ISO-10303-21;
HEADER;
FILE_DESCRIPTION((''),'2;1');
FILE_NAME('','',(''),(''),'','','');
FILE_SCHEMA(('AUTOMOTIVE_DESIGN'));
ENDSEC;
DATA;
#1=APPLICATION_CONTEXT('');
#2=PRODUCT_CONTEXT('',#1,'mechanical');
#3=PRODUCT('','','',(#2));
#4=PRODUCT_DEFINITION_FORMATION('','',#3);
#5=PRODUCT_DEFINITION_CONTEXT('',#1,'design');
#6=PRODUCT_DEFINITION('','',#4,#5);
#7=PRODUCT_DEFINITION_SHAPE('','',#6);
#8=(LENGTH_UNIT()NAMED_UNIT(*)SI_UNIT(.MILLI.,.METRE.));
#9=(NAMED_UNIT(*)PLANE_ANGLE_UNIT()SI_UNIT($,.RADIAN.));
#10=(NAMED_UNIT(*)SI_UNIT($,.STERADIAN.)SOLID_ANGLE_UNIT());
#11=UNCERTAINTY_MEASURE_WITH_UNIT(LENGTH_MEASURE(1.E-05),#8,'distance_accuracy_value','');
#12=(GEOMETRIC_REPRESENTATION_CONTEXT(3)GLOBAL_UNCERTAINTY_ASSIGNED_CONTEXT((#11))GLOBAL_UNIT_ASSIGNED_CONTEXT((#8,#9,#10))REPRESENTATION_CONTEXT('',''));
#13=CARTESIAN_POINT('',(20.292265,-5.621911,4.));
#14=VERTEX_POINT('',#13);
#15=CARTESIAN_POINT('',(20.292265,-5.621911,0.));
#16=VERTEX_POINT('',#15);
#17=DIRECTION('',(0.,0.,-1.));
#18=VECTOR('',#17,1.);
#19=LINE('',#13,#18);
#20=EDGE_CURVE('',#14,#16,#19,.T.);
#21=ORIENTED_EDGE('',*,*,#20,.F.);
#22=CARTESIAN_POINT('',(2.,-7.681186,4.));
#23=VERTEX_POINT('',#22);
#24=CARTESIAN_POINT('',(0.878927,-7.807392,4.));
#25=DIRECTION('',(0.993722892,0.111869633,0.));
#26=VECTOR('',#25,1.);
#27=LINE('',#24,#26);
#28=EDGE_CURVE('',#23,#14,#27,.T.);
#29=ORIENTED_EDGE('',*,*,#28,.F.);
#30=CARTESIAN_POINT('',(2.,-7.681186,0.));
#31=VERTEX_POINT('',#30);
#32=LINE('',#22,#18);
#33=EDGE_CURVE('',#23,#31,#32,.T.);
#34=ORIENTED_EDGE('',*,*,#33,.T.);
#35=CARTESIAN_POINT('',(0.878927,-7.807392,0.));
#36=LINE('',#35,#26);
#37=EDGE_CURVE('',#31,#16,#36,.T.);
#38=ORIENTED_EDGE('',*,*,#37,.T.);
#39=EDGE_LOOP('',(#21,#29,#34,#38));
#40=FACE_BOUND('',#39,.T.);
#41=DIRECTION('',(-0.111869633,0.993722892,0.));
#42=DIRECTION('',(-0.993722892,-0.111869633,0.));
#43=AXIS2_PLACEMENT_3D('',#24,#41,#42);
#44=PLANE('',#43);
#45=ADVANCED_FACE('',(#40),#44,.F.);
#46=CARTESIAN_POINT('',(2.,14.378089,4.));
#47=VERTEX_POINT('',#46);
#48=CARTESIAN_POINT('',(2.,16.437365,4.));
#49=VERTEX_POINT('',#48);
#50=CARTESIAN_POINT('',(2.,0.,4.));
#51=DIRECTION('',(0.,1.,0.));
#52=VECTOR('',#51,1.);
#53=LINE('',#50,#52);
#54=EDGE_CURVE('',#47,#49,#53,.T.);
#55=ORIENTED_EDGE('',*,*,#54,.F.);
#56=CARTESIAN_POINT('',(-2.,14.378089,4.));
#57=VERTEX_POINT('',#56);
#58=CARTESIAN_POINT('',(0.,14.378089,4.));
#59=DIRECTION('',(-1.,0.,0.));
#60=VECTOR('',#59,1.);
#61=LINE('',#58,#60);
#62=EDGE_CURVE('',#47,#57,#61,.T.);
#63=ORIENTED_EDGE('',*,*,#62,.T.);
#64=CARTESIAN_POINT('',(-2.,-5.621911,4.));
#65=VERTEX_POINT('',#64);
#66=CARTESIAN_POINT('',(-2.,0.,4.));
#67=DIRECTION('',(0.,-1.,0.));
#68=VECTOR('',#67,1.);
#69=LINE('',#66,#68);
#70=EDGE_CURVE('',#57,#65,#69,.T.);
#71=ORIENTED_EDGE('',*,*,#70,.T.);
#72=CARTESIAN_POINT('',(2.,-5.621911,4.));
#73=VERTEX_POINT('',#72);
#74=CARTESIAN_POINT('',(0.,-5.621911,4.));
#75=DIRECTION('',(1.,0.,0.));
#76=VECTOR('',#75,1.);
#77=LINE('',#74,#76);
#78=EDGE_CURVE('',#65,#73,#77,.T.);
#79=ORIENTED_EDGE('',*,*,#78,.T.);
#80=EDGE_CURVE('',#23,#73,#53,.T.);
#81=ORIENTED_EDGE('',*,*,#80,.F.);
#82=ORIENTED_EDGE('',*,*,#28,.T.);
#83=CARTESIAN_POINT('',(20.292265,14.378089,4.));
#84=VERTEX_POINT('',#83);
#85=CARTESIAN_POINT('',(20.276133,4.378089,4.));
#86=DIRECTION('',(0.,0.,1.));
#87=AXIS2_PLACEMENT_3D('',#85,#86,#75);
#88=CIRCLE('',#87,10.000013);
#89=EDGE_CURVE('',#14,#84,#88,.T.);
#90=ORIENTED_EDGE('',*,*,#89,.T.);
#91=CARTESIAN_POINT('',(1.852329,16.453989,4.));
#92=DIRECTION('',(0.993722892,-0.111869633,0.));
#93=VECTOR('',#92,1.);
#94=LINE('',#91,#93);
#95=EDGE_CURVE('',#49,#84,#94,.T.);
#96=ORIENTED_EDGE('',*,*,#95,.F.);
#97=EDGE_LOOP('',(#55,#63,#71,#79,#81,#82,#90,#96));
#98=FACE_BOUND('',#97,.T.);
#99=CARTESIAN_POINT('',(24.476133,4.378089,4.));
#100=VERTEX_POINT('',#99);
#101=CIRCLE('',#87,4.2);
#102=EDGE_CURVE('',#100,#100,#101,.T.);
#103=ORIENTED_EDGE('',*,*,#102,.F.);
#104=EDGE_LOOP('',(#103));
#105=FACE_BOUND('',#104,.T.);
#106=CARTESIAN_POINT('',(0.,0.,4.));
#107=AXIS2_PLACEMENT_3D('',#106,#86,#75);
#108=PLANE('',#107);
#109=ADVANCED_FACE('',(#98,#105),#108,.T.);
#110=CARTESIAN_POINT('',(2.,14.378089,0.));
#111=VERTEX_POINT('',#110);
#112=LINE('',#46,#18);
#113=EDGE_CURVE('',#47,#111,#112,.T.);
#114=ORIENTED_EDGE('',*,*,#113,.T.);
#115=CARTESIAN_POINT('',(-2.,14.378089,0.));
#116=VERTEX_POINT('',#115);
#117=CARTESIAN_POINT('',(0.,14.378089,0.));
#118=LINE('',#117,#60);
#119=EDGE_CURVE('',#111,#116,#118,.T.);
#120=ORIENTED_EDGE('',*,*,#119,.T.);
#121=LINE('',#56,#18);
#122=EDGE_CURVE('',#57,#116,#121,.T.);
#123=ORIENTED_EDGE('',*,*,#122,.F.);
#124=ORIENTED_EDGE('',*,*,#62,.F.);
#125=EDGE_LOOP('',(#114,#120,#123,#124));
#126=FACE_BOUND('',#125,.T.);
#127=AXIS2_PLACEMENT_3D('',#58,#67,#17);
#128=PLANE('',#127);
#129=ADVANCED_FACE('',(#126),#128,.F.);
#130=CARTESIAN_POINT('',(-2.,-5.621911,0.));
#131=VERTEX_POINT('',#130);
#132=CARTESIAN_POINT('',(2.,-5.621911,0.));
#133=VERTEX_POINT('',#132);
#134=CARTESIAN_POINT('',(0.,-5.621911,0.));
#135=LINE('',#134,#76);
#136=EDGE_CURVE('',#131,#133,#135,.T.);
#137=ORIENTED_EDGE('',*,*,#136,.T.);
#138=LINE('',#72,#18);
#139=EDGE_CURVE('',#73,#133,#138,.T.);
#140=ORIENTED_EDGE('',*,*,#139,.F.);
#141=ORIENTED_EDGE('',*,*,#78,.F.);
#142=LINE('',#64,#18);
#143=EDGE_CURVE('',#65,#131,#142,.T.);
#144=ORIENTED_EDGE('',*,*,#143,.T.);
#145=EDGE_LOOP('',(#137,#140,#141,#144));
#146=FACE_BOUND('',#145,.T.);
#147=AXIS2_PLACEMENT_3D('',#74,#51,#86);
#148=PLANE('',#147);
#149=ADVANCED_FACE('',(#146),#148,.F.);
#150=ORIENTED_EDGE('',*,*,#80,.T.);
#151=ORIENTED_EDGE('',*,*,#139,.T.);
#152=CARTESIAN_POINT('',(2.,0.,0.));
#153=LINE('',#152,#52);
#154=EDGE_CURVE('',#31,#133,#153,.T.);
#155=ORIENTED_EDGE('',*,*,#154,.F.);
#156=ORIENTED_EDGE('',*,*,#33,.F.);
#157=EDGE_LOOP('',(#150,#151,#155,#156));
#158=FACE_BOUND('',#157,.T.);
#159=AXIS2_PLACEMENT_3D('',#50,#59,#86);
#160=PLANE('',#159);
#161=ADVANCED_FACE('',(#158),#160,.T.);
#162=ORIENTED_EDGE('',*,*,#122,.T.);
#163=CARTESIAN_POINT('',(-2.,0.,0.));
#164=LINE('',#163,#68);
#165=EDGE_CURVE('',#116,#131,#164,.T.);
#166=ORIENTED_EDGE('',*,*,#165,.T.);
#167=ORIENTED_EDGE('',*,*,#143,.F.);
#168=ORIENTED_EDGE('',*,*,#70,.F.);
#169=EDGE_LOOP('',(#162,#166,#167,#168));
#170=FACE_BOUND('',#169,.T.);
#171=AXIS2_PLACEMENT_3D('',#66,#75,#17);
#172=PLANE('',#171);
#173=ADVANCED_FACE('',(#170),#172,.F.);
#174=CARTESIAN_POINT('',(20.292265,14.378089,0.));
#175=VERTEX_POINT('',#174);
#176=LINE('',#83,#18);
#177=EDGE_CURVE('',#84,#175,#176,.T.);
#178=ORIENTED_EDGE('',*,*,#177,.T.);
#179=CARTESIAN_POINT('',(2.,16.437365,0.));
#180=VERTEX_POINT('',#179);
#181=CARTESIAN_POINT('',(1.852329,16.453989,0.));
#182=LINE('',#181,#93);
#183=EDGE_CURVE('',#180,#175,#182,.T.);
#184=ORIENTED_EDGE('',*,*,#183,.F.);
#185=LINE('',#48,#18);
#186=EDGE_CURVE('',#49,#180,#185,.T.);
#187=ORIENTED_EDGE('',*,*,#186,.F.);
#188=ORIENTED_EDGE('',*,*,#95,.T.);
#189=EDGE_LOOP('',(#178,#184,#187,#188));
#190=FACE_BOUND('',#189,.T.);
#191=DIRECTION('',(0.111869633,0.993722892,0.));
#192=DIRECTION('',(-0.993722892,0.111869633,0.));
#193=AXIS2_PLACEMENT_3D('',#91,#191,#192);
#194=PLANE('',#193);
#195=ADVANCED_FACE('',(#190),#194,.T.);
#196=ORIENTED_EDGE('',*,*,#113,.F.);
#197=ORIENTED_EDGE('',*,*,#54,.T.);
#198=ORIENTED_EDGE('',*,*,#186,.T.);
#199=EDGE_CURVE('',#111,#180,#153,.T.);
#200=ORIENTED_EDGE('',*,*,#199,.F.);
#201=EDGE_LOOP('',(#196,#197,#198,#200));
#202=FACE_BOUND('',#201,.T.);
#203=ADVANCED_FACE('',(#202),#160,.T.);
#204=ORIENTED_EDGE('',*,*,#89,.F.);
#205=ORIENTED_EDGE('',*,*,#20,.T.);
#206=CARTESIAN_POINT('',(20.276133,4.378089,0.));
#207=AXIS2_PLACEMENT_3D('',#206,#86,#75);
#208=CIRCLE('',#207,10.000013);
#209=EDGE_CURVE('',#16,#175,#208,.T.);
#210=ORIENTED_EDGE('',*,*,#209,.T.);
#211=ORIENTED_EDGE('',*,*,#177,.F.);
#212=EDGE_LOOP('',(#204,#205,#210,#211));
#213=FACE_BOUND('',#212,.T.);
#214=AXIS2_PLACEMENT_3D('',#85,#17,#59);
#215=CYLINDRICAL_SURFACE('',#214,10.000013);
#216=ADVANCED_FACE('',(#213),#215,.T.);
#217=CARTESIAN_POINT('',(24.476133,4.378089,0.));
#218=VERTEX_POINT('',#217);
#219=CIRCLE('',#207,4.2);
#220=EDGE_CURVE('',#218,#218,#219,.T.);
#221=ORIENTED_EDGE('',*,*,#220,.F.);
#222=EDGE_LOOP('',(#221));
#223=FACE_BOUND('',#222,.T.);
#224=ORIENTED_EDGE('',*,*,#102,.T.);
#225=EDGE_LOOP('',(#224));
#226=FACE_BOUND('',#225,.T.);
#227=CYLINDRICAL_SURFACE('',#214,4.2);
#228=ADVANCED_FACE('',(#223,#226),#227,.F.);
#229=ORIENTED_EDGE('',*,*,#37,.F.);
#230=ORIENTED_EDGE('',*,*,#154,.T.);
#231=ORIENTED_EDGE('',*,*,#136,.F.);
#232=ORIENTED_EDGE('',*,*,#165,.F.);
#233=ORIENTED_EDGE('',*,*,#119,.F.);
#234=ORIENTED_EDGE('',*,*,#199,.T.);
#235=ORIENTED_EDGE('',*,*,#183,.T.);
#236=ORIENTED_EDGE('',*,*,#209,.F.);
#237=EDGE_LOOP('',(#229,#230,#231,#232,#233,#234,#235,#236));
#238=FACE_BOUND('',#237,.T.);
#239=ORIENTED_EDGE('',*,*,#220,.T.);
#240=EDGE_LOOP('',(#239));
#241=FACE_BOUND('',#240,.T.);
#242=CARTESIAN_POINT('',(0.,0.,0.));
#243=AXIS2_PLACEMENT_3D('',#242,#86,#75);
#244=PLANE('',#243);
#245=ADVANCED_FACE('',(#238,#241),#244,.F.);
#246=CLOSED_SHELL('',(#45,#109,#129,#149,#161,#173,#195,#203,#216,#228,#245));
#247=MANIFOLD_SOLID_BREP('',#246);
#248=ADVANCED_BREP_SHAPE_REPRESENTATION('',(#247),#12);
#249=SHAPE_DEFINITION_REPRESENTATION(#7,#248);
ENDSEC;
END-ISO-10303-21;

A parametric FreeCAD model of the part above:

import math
import FreeCAD as App
import Part
import Sketcher
from FreeCAD import Vector
Q = App.Units.Quantity

doc = App.newDocument("Part")
body = doc.addObject("PartDesign::Body", "Body")

# Sketch on XY plane
sketch1 = body.newObject("Sketcher::SketchObject", "Sketch")
sketch1.AttachmentSupport = (doc.getObject("XY_Plane"), [""])
sketch1.MapMode = "FlatFace"
sketch1.addGeometry([
    Part.LineSegment(Vector(2, 14.378089, 0), Vector(-2, 14.378089, 0)),  # 0
    Part.LineSegment(Vector(-2, 14.378089, 0), Vector(-2, -5.621911, 0)),  # 1
    Part.LineSegment(Vector(-2, -5.621911, 0), Vector(2, -5.621911, 0)),  # 2
    Part.LineSegment(Vector(2, -5.621911, 0), Vector(2, -7.681186, 0)),  # 3
    Part.LineSegment(Vector(2, -7.681186, 0), Vector(20.292265, -5.621911, 0)),  # 4
    Part.ArcOfCircle(Part.Circle(Vector(20.276133, 4.378089, 0), Vector(0, 0, 1), 10.000013), math.radians(-89.907567), math.radians(89.907567)),  # 5
    Part.LineSegment(Vector(20.292265, 14.378089, 0), Vector(2, 16.437365, 0)),  # 6
    Part.LineSegment(Vector(2, 16.437365, 0), Vector(2, 14.378089, 0)),  # 7
    Part.Circle(Vector(20.276133, 4.378089, 0), Vector(0, 0, 1), 4.2),  # 8
], False)
sketch1.addConstraint([
    Sketcher.Constraint("Coincident", 0, 2, 1, 1),
    Sketcher.Constraint("Coincident", 1, 2, 2, 1),
    Sketcher.Constraint("Coincident", 2, 2, 3, 1),
    Sketcher.Constraint("Coincident", 3, 2, 4, 1),
    Sketcher.Constraint("Coincident", 4, 2, 5, 1),
    Sketcher.Constraint("Coincident", 5, 2, 6, 1),
    Sketcher.Constraint("Coincident", 6, 2, 7, 1),
    Sketcher.Constraint("Coincident", 7, 2, 0, 1),
    Sketcher.Constraint("Horizontal", 0),
    Sketcher.Constraint("Vertical", 1),
    Sketcher.Constraint("Horizontal", 2),
    Sketcher.Constraint("Vertical", 3),
    Sketcher.Constraint("Vertical", 7),
    Sketcher.Constraint("Coincident", 8, 3, 5, 3),
    Sketcher.Constraint("Horizontal", 2, 2, 4, 2),
    Sketcher.Constraint("Horizontal", 0, 2, 5, 2),
    Sketcher.Constraint("Vertical", 4, 2, 5, 2),
    Sketcher.Constraint("Vertical", 3, 2, 6, 2),
    Sketcher.Constraint("Equal", 3, 7),
    Sketcher.Constraint("Diameter", 8, Q("8.4 mm")),
    Sketcher.Constraint("DistanceX", 0, 2, 0, 1, Q("4 mm")),
    Sketcher.Constraint("DistanceY", 1, 2, 1, 1, Q("20 mm")),
    Sketcher.Constraint("DistanceX", 0, 2, -1, 1, Q("2 mm")),
    Sketcher.Constraint("DistanceY", 3, 2, 3, 1, Q("2.059275 mm")),
    Sketcher.Constraint("DistanceY", -1, 1, 5, 3, Q("4.378089 mm")),
    Sketcher.Constraint("Distance", 4, Q("18.407813 mm")),
    Sketcher.Constraint("DistanceX", -1, 1, 5, 3, Q("20.276133 mm")),
])
pad1 = body.newObject("PartDesign::Pad", "Pad")
pad1.Profile = sketch1
pad1.Length = 4

doc.recompute()
